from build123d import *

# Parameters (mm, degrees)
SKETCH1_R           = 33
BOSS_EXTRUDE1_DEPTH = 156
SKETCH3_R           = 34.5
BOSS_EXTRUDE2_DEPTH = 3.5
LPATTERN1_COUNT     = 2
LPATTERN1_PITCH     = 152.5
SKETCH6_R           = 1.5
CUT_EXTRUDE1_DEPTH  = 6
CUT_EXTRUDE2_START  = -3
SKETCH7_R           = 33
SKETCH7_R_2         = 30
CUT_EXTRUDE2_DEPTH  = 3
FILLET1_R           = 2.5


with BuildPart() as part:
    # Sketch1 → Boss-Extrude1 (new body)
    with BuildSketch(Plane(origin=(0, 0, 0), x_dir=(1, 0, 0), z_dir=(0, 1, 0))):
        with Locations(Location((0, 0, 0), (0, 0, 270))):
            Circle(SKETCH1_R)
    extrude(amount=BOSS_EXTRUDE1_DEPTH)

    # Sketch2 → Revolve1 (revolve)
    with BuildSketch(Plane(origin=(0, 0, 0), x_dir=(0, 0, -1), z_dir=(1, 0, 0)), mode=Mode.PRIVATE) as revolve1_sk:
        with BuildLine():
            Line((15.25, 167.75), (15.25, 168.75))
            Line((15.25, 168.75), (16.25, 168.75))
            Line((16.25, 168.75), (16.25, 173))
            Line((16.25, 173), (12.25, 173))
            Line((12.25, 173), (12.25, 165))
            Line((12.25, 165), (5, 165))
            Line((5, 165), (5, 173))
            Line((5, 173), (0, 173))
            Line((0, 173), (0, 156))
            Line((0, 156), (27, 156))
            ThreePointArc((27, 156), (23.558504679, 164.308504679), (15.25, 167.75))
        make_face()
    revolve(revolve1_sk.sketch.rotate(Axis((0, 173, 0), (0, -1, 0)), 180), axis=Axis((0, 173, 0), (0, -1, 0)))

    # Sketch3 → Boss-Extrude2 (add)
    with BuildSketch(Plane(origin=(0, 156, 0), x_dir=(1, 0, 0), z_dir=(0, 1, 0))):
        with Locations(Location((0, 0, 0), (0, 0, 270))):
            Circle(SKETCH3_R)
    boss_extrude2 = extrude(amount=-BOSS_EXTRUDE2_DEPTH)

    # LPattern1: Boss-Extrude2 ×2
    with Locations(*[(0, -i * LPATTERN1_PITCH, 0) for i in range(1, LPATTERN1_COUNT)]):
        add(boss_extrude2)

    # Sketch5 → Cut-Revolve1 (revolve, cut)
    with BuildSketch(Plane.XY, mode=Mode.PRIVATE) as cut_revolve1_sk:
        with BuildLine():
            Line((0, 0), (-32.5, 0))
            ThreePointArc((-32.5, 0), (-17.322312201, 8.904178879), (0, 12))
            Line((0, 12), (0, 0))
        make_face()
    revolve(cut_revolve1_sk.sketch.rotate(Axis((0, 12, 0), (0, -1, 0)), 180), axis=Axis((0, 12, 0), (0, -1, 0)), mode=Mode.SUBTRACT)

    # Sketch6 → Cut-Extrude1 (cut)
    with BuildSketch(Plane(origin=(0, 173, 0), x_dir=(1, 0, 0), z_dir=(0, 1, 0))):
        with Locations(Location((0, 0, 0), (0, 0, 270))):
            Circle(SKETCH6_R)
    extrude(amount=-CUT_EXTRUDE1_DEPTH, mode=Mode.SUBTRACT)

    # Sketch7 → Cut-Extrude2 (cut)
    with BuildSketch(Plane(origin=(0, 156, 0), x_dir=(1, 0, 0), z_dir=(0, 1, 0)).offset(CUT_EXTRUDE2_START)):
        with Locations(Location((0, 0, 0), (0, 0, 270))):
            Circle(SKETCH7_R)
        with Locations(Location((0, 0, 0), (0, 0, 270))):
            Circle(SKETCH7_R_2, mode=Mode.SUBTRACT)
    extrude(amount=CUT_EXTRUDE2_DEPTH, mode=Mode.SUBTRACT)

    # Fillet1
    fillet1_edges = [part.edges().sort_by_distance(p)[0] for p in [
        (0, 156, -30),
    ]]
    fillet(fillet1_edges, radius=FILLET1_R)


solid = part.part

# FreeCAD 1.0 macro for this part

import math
import FreeCAD as App
import Part
import Sketcher
Q = App.Units.Quantity


def edges_at(feature, points):
    """Names of the edges that pass closest to the given points."""
    edges = feature.Shape.Edges
    near = lambda p: min(range(len(edges)), key=lambda i: edges[i].distToShape(Part.Vertex(*p))[0])
    return sorted({f"Edge{near(p) + 1}" for p in points})

doc = App.newDocument("Part")
body = doc.addObject("PartDesign::Body", "Body")

# Sketch on XZ plane
sketch1 = body.newObject("Sketcher::SketchObject", "Sketch")
sketch1.AttachmentSupport = (doc.getObject("XZ_Plane"), [""])
sketch1.MapMode = "FlatFace"
sketch1.addGeometry(Part.Circle(App.Vector(0, 0, 0), App.Vector(0, 0, 1), 33), False)
sketch1.addConstraint([
    Sketcher.Constraint("Coincident", 0, 3, -1, 1),
    Sketcher.Constraint("Diameter", 0, Q("66 mm")),
])
pad1 = body.newObject("PartDesign::Pad", "Pad")
pad1.Profile = sketch1
pad1.Length = 156
pad1.Reversed = True

# Sketch on YZ plane
sketch2 = body.newObject("Sketcher::SketchObject", "Sketch001")
sketch2.AttachmentSupport = (doc.getObject("YZ_Plane"), [""])
sketch2.MapMode = "FlatFace"
sketch2.addGeometry([
    Part.LineSegment(App.Vector(167.8, -15.2, 0), App.Vector(168.8, -15.2, 0)),  # 0
    Part.LineSegment(App.Vector(168.8, -15.2, 0), App.Vector(168.8, -16.2, 0)),  # 1
    Part.LineSegment(App.Vector(168.8, -16.2, 0), App.Vector(173, -16.2, 0)),  # 2
    Part.LineSegment(App.Vector(173, -16.2, 0), App.Vector(173, -12.2, 0)),  # 3
    Part.LineSegment(App.Vector(173, -12.2, 0), App.Vector(165, -12.2, 0)),  # 4
    Part.LineSegment(App.Vector(165, -12.2, 0), App.Vector(165, -5, 0)),  # 5
    Part.LineSegment(App.Vector(165, -5, 0), App.Vector(173, -5, 0)),  # 6
    Part.LineSegment(App.Vector(173, -5, 0), App.Vector(173, 0, 0)),  # 7
    Part.LineSegment(App.Vector(173, 0, 0), App.Vector(156, 0, 0)),  # 8
    Part.LineSegment(App.Vector(156, 0, 0), App.Vector(156, -27, 0)),  # 9
    Part.ArcOfCircle(Part.Circle(App.Vector(156, -15.2, 0), App.Vector(0, 0, 1), 11.8), math.radians(-90), math.radians(0)),  # 10
], False)
sketch2.addConstraint([
    Sketcher.Constraint("Coincident", 0, 2, 1, 1),
    Sketcher.Constraint("Coincident", 1, 2, 2, 1),
    Sketcher.Constraint("Coincident", 2, 2, 3, 1),
    Sketcher.Constraint("Coincident", 3, 2, 4, 1),
    Sketcher.Constraint("Coincident", 4, 2, 5, 1),
    Sketcher.Constraint("Coincident", 5, 2, 6, 1),
    Sketcher.Constraint("Coincident", 6, 2, 7, 1),
    Sketcher.Constraint("Coincident", 7, 2, 8, 1),
    Sketcher.Constraint("Coincident", 8, 2, 9, 1),
    Sketcher.Constraint("Coincident", 9, 2, 10, 1),
    Sketcher.Constraint("Coincident", 10, 2, 0, 1),
    Sketcher.Constraint("Horizontal", 0),
    Sketcher.Constraint("Vertical", 1),
    Sketcher.Constraint("Horizontal", 2),
    Sketcher.Constraint("Vertical", 3),
    Sketcher.Constraint("Horizontal", 4),
    Sketcher.Constraint("Vertical", 5),
    Sketcher.Constraint("Horizontal", 6),
    Sketcher.Constraint("Vertical", 7),
    Sketcher.Constraint("Horizontal", 8),
    Sketcher.Constraint("Vertical", 9),
    Sketcher.Constraint("PointOnObject", 7, 2, -1),
    Sketcher.Constraint("Horizontal", 10, 3, 0, 2),
    Sketcher.Constraint("Vertical", 3, 2, 6, 2),
    Sketcher.Constraint("Vertical", 10, 3, 8, 2),
    Sketcher.Constraint("Equal", 0, 1),
    Sketcher.Constraint("DistanceX", 0, 1, 0, 2, Q("1 mm")),
    Sketcher.Constraint("DistanceX", 4, 2, 4, 1, Q("8 mm")),
    Sketcher.Constraint("DistanceX", 8, 2, 8, 1, Q("17 mm")),
    Sketcher.Constraint("DistanceY", 3, 1, 3, 2, Q("4 mm")),
    Sketcher.Constraint("DistanceY", 7, 1, 7, 2, Q("5 mm")),
    Sketcher.Constraint("DistanceY", 9, 2, 9, 1, Q("27 mm")),
    Sketcher.Constraint("Radius", 10, Q("11.75 mm")),
    Sketcher.Constraint("DistanceX", -1, 1, 10, 3, Q("156 mm")),
])
revolution = body.newObject("PartDesign::Revolution", "Revolution")
revolution.Profile = sketch2
revolution.ReferenceAxis = (sketch2, ["H_Axis"])
revolution.Angle = 360

# Sketch on XZ plane
sketch3 = body.newObject("Sketcher::SketchObject", "Sketch002")
sketch3.AttachmentSupport = (doc.getObject("XZ_Plane"), [""])
sketch3.MapMode = "FlatFace"
sketch3.AttachmentOffset = App.Placement(App.Vector(0, 0, -156), App.Rotation())
sketch3.addGeometry(Part.Circle(App.Vector(0, 0, 0), App.Vector(0, 0, 1), 34), False)
sketch3.addConstraint([
    Sketcher.Constraint("Coincident", 0, 3, -1, 1),
    Sketcher.Constraint("Diameter", 0, Q("69 mm")),
])
pad2 = body.newObject("PartDesign::Pad", "Pad001")
pad2.Profile = sketch3
pad2.Length = 3.5
doc.recompute()

linearpattern = body.newObject("PartDesign::LinearPattern", "LinearPattern")
linearpattern.Originals = [pad2]
linearpattern.Direction = (doc.getObject("Y_Axis"), [""])
linearpattern.Mode = "offset"
linearpattern.Offset = 152.5
linearpattern.Occurrences = 2
linearpattern.Reversed = True
body.Tip = linearpattern

# Sketch on XY plane
sketch4 = body.newObject("Sketcher::SketchObject", "Sketch003")
sketch4.AttachmentSupport = (doc.getObject("XY_Plane"), [""])
sketch4.MapMode = "FlatFace"
sketch4.addGeometry([
    Part.LineSegment(App.Vector(-32, 0, 0), App.Vector(0, 0, 0)),
    Part.LineSegment(App.Vector(0, 0, 0), App.Vector(0, 12, 0)),
    Part.ArcOfCircle(Part.Circle(App.Vector(0, -38, 0), App.Vector(0, 0, 1), 50), math.radians(90), math.radians(131)),
], False)
sketch4.addConstraint([
    Sketcher.Constraint("Coincident", 0, 2, 1, 1),
    Sketcher.Constraint("Coincident", 1, 2, 2, 1),
    Sketcher.Constraint("Coincident", 2, 2, 0, 1),
    Sketcher.Constraint("Horizontal", 0),
    Sketcher.Constraint("Vertical", 1),
    Sketcher.Constraint("Coincident", 0, 2, -1, 1),
    Sketcher.Constraint("PointOnObject", 2, 3, -2),
    Sketcher.Constraint("DistanceY", 1, 1, 1, 2, Q("12 mm")),
    Sketcher.Constraint("DistanceX", 0, 1, 0, 2, Q("32.5 mm")),
])
groove = body.newObject("PartDesign::Groove", "Groove")
groove.Profile = sketch4
groove.ReferenceAxis = (sketch4, ["V_Axis"])
groove.Angle = 360

# Sketch on XZ plane
sketch5 = body.newObject("Sketcher::SketchObject", "Sketch004")
sketch5.AttachmentSupport = (doc.getObject("XZ_Plane"), [""])
sketch5.MapMode = "FlatFace"
sketch5.AttachmentOffset = App.Placement(App.Vector(0, 0, -173), App.Rotation())
sketch5.addGeometry(Part.Circle(App.Vector(0, 0, 0), App.Vector(0, 0, 1), 1.5), False)
sketch5.addConstraint([
    Sketcher.Constraint("Coincident", 0, 3, -1, 1),
    Sketcher.Constraint("Diameter", 0, Q("3 mm")),
])
pocket1 = body.newObject("PartDesign::Pocket", "Pocket")
pocket1.Profile = sketch5
pocket1.Length = 6
pocket1.Reversed = True

# Sketch on XZ plane
sketch6 = body.newObject("Sketcher::SketchObject", "Sketch005")
sketch6.AttachmentSupport = (doc.getObject("XZ_Plane"), [""])
sketch6.MapMode = "FlatFace"
sketch6.AttachmentOffset = App.Placement(App.Vector(0, 0, -153), App.Rotation())
sketch6.addGeometry([
    Part.Circle(App.Vector(0, 0, 0), App.Vector(0, 0, 1), 33),
    Part.Circle(App.Vector(0, 0, 0), App.Vector(0, 0, 1), 30),
], False)
sketch6.addConstraint([
    Sketcher.Constraint("Coincident", 0, 3, -1, 1),
    Sketcher.Constraint("Coincident", 1, 3, -1, 1),
    Sketcher.Constraint("Diameter", 0, Q("66 mm")),
    Sketcher.Constraint("Diameter", 1, Q("60 mm")),
])
pocket2 = body.newObject("PartDesign::Pocket", "Pocket001")
pocket2.Profile = sketch6
pocket2.Length = 3
doc.recompute()

fillet = body.newObject("PartDesign::Fillet", "Fillet")
fillet.Base = (pocket2, edges_at(pocket2, [(0, 156, -30)]))
fillet.Radius = 2.5

doc.recompute()
